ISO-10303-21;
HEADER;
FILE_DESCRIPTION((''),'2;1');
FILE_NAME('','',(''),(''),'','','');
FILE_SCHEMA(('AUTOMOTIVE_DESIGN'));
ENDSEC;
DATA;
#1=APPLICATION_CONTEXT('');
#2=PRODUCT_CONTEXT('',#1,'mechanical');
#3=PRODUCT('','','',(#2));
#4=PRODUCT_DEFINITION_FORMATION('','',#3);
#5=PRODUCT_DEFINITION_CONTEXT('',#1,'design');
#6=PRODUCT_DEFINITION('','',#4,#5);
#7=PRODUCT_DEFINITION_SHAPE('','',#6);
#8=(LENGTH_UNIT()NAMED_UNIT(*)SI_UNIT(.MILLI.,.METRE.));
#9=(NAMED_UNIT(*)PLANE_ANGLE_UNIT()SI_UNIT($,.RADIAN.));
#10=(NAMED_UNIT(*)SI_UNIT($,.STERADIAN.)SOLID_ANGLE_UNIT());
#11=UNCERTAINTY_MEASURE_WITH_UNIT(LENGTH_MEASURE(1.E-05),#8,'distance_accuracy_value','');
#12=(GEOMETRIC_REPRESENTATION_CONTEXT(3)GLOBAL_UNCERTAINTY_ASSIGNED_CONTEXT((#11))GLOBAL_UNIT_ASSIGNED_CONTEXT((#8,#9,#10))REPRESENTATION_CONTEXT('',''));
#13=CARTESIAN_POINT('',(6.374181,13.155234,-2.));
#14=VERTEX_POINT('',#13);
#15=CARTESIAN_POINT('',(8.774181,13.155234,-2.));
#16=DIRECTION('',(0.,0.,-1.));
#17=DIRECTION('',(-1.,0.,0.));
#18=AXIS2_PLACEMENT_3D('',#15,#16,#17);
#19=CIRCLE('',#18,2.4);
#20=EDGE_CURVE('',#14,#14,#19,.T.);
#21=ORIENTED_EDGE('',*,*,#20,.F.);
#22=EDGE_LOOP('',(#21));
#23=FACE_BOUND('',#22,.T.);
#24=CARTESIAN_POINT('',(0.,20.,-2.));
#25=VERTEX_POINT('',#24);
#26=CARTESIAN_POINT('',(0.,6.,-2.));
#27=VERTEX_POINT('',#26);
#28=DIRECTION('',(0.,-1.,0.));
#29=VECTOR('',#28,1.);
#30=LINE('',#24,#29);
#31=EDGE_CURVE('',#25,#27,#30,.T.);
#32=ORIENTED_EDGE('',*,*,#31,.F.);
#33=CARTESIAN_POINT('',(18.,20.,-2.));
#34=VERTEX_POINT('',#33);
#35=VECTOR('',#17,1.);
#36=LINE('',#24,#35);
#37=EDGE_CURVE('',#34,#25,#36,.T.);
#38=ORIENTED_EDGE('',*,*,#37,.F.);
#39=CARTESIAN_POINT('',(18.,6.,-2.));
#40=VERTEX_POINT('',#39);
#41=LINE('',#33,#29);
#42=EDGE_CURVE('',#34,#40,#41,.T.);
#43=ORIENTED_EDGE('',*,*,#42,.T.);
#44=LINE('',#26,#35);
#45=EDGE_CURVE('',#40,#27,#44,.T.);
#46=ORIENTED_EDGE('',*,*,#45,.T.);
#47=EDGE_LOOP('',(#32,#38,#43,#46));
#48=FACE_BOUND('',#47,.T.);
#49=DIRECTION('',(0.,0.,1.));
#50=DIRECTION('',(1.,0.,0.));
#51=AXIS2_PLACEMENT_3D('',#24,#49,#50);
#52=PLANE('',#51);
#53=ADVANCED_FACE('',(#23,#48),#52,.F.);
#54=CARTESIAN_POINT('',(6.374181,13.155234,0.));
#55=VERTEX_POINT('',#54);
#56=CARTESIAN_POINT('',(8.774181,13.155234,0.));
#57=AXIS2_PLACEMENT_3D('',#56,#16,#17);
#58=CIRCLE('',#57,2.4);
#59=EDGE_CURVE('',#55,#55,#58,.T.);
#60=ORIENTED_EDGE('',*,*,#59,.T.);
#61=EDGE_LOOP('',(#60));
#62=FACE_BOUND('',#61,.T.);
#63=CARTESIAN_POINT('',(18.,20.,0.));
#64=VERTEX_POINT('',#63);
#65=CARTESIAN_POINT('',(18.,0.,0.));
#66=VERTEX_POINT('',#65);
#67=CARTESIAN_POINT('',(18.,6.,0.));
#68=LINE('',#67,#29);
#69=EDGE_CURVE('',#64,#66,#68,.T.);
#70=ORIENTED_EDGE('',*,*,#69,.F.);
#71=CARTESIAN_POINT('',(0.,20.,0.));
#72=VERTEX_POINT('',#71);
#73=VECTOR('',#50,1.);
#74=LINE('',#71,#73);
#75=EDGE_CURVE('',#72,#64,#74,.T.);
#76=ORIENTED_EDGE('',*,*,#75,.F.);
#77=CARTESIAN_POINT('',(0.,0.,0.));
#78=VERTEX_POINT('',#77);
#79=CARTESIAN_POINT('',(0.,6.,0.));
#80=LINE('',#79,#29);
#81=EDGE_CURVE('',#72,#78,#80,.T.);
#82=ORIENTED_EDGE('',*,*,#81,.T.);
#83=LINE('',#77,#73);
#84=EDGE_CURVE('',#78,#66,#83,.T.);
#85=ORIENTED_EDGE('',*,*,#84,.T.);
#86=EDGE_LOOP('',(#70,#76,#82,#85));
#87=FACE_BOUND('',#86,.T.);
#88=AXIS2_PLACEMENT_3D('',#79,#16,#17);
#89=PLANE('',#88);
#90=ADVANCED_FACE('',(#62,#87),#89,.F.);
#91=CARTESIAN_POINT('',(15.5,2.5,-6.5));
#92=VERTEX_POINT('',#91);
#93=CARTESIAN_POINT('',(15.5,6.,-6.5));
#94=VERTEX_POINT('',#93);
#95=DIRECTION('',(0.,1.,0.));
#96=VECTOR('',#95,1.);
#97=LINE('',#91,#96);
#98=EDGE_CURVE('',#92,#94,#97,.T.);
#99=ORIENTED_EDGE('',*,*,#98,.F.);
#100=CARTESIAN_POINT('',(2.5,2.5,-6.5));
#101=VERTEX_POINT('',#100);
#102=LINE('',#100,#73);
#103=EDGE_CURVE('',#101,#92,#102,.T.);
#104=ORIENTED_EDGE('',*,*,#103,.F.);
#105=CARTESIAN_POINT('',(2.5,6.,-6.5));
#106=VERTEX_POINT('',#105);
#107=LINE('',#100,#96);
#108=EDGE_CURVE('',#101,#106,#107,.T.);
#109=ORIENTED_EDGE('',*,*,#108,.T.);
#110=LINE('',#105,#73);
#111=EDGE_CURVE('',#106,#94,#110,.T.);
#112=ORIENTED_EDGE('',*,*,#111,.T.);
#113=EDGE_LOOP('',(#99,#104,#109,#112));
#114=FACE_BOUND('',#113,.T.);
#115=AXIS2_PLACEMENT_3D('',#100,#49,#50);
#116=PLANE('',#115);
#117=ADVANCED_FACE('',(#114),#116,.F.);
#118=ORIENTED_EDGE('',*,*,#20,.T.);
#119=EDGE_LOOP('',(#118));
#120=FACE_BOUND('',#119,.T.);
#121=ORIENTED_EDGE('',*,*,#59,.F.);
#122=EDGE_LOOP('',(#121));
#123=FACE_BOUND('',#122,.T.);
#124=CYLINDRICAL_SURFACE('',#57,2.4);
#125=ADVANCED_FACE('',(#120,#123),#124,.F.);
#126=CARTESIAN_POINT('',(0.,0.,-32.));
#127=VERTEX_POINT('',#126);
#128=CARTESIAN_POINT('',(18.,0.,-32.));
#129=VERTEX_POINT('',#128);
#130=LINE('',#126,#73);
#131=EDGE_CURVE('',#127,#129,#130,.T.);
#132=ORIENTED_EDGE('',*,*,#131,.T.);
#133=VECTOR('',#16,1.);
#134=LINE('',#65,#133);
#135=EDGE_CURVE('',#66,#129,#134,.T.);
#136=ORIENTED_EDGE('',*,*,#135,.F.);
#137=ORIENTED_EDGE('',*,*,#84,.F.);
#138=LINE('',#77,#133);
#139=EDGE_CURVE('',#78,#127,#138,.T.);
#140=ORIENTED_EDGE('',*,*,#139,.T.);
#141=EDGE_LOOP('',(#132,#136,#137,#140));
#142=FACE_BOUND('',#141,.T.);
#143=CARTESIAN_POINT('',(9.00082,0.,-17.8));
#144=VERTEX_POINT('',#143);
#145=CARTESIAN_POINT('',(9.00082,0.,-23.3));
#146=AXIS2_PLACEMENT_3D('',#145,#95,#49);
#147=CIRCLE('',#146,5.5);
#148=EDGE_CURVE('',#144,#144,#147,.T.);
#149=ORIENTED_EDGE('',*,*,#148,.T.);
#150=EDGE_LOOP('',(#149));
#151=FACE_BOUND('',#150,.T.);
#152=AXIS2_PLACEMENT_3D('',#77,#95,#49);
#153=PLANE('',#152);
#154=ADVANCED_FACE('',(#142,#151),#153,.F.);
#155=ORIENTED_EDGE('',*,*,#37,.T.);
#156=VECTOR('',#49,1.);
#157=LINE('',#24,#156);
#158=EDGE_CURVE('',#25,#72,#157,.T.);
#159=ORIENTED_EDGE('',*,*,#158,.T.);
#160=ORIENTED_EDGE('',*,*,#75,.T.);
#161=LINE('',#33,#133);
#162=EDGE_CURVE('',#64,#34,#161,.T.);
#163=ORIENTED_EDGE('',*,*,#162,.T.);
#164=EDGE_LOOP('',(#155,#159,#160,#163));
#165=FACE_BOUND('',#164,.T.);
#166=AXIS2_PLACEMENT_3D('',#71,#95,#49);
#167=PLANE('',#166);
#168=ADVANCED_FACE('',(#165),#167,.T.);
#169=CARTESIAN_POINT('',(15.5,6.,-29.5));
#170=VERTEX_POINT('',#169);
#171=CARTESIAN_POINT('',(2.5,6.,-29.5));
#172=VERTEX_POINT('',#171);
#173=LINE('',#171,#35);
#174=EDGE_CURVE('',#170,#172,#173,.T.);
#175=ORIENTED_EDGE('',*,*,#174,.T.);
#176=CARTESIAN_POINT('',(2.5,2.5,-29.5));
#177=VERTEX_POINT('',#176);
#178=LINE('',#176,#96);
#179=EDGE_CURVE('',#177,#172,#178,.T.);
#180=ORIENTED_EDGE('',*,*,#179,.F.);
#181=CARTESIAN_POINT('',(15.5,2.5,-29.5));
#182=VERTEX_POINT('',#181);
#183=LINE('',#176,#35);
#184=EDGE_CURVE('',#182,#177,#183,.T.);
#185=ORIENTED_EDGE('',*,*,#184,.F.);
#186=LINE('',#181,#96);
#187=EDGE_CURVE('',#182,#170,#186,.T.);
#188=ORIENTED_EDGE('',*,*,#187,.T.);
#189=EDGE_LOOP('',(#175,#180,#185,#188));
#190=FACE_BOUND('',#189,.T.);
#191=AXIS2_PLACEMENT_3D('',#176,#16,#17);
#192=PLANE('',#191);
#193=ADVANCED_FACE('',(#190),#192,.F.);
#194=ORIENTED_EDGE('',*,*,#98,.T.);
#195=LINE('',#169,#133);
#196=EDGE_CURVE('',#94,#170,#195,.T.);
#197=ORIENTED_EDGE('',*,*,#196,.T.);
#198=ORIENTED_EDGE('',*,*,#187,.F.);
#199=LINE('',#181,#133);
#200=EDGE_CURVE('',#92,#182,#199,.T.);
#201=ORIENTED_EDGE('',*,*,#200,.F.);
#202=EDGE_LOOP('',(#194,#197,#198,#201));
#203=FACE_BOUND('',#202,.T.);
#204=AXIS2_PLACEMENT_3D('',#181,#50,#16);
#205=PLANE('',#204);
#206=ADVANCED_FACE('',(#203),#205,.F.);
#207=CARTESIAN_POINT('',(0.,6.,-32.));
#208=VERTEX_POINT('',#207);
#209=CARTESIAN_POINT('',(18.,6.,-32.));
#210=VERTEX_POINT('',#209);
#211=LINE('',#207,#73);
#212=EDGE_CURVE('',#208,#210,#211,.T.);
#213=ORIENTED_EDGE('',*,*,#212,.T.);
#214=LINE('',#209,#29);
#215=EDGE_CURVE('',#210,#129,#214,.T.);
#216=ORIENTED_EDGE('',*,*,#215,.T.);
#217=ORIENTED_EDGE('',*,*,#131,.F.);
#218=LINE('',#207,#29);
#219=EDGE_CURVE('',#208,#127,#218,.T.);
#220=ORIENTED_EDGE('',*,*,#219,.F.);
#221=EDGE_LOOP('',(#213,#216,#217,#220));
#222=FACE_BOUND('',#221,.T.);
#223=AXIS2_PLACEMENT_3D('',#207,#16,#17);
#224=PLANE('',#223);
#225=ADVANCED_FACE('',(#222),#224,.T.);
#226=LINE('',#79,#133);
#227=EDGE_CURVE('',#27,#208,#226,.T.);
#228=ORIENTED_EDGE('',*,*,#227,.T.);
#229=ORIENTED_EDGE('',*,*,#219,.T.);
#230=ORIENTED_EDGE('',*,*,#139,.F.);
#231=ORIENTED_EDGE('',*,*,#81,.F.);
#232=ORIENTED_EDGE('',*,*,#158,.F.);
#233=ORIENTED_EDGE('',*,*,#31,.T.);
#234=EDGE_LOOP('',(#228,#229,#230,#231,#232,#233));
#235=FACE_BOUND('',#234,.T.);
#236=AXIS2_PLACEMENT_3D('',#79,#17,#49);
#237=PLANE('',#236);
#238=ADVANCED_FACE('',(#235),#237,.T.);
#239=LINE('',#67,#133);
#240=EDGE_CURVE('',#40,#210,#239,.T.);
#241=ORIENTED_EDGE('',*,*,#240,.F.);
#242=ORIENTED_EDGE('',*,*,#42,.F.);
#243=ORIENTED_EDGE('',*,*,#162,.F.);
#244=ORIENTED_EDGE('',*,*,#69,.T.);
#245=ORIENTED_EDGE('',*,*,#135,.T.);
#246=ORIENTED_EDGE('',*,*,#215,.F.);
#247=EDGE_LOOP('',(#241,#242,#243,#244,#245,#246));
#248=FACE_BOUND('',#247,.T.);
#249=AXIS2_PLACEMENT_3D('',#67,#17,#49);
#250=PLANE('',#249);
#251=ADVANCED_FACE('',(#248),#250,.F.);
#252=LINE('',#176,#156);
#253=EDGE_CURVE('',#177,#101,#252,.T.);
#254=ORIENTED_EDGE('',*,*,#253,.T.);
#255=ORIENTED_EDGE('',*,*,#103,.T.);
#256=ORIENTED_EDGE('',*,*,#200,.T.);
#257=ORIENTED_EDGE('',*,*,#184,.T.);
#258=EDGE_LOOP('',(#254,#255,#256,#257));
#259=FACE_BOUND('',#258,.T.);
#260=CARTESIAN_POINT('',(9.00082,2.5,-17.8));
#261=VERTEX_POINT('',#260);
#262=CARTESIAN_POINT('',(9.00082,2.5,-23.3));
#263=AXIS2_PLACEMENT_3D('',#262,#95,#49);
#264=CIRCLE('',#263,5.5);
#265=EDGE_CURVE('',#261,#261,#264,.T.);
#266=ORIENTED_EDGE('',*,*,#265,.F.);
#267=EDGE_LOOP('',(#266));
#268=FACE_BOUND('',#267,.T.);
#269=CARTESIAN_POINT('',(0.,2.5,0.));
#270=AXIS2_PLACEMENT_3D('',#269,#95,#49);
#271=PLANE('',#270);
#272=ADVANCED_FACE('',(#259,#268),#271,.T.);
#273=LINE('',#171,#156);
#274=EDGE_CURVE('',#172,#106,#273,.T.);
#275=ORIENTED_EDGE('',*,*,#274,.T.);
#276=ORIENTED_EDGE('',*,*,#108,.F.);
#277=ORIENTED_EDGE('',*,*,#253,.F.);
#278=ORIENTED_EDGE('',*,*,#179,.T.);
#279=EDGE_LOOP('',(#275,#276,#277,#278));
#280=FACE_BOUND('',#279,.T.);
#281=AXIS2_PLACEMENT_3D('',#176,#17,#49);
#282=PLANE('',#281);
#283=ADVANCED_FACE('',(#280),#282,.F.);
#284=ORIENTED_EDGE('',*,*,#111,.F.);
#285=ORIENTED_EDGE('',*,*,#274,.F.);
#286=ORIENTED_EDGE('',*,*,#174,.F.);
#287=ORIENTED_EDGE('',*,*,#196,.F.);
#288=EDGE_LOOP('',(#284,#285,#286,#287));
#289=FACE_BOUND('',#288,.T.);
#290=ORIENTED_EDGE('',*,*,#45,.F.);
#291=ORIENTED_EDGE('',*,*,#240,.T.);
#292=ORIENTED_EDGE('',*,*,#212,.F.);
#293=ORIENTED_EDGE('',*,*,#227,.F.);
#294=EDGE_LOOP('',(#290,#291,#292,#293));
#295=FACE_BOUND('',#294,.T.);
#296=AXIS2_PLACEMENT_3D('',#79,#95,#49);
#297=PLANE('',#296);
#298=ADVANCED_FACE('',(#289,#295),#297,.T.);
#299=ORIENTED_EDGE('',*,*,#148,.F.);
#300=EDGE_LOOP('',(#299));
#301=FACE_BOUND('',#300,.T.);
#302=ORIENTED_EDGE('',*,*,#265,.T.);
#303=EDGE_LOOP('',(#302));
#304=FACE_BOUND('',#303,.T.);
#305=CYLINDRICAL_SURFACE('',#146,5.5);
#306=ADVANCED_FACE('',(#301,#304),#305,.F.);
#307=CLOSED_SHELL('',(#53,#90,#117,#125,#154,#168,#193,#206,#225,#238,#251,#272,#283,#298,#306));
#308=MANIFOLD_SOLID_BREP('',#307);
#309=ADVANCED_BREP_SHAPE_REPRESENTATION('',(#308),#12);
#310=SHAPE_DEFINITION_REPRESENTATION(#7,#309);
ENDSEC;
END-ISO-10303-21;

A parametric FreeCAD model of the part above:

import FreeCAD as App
import Part
import Sketcher
from FreeCAD import Vector


def add_polygon(sketch, points):
    """Adds a closed chain of lines whose ends are joined by coincident constraints."""
    first, n = sketch.GeometryCount, len(points)
    for a, b in zip(points, points[1:] + points[:1]):
        sketch.addGeometry(Part.LineSegment(App.Vector(*a, 0), App.Vector(*b, 0)), False)
    for i in range(n):
        sketch.addConstraint(Sketcher.Constraint("Coincident", first + i, 2, first + (i + 1) % n, 1))

doc = App.newDocument("Part")
body = doc.addObject("PartDesign::Body", "Body")

# Sketch on XZ plane
sketch1 = doc.addObject("Sketcher::SketchObject", "Sketch")
body.addObject(sketch1)
sketch1.AttachmentSupport = (doc.XZ_Plane, [""])
sketch1.MapMode = "FlatFace"
add_polygon(sketch1, [(0, -32), (0, 0), (18, 0), (18, -32)])  # lines 0-3
sketch1.addConstraint([
    Sketcher.Constraint("Vertical", 0),
    Sketcher.Constraint("Horizontal", 1),
    Sketcher.Constraint("Vertical", 2),
    Sketcher.Constraint("Horizontal", 3),
    Sketcher.Constraint("Coincident", 0, 2, -1, 1),
    Sketcher.Constraint("DistanceX", 1, 1, 1, 2, 18.0),
    Sketcher.Constraint("DistanceY", 0, 1, 0, 2, 32.0),
])
pad1 = doc.addObject("PartDesign::Pad", "Pad")
body.addObject(pad1)
pad1.Profile = sketch1
pad1.Length = 6
pad1.Reversed = True

# Sketch on XZ plane
sketch2 = doc.addObject("Sketcher::SketchObject", "Sketch001")
body.addObject(sketch2)
sketch2.AttachmentSupport = (doc.XZ_Plane, [""])
sketch2.MapMode = "FlatFace"
sketch2.AttachmentOffset = App.Placement(Vector(0, 0, -6), App.Rotation())
add_polygon(sketch2, [(2, -30), (2, -6), (16, -6), (16, -30)])  # lines 0-3
sketch2.addConstraint([
    Sketcher.Constraint("Vertical", 0),
    Sketcher.Constraint("Horizontal", 1),
    Sketcher.Constraint("Vertical", 2),
    Sketcher.Constraint("Horizontal", 3),
    Sketcher.Constraint("DistanceX", 1, 1, 1, 2, 13.0),
    Sketcher.Constraint("DistanceY", 0, 1, 0, 2, 23.0),
    Sketcher.Constraint("DistanceX", -1, 1, 0, 2, 2.5),
    Sketcher.Constraint("DistanceY", 0, 2, -1, 1, 6.5),
])
pocket1 = doc.addObject("PartDesign::Pocket", "Pocket")
body.addObject(pocket1)
pocket1.Profile = sketch2
pocket1.Length = 3.5
pocket1.Reversed = True

# Sketch on XZ plane
sketch3 = doc.addObject("Sketcher::SketchObject", "Sketch002")
body.addObject(sketch3)
sketch3.AttachmentSupport = (doc.XZ_Plane, [""])
sketch3.MapMode = "FlatFace"
sketch3.AttachmentOffset = App.Placement(Vector(0, 0, -2.5), App.Rotation())
sketch3.addGeometry(Part.Circle(Vector(9, -23, 0), Vector(0, 0, 1), 6), False)
sketch3.addConstraint([
    Sketcher.Constraint("Diameter", 0, 11.0),
    Sketcher.Constraint("DistanceY", 0, 3, -1, 1, 23.3),
    Sketcher.Constraint("DistanceX", -1, 1, 0, 3, 9.00082),
])
pocket2 = doc.addObject("PartDesign::Pocket", "Pocket001")
body.addObject(pocket2)
pocket2.Profile = sketch3
pocket2.Type = "ThroughAll"
pocket2.Reversed = True

# Sketch on XZ plane
sketch4 = doc.addObject("Sketcher::SketchObject", "Sketch003")
body.addObject(sketch4)
sketch4.AttachmentSupport = (doc.XZ_Plane, [""])
sketch4.MapMode = "FlatFace"
sketch4.AttachmentOffset = App.Placement(Vector(0, 0, -6), App.Rotation())
add_polygon(sketch4, [(0, -2), (0, 0), (18, 0), (18, -2)])  # lines 0-3
sketch4.addConstraint([
    Sketcher.Constraint("Vertical", 0),
    Sketcher.Constraint("Horizontal", 1),
    Sketcher.Constraint("Vertical", 2),
    Sketcher.Constraint("Horizontal", 3),
    Sketcher.Constraint("Coincident", 0, 2, -1, 1),
    Sketcher.Constraint("DistanceX", 1, 1, 1, 2, 18.0),
    Sketcher.Constraint("DistanceY", 0, 1, 0, 2, 2.0),
])
pad2 = doc.addObject("PartDesign::Pad", "Pad001")
body.addObject(pad2)
pad2.Profile = sketch4
pad2.Length = 14
pad2.Reversed = True

# Sketch on XY plane
sketch5 = doc.addObject("Sketcher::SketchObject", "Sketch004")
body.addObject(sketch5)
sketch5.AttachmentSupport = (doc.XY_Plane, [""])
sketch5.MapMode = "FlatFace"
sketch5.AttachmentOffset = App.Placement(Vector(0, 0, -2), App.Rotation())
sketch5.addGeometry(Part.Circle(Vector(8.8, 13.2, 0), Vector(0, 0, 1), 2.4), False)
sketch5.addConstraint([
    Sketcher.Constraint("Diameter", 0, 4.8),
    Sketcher.Constraint("DistanceX", -1, 1, 0, 3, 8.774181),
    Sketcher.Constraint("DistanceY", -1, 1, 0, 3, 13.155234),
])
pocket3 = doc.addObject("PartDesign::Pocket", "Pocket002")
body.addObject(pocket3)
pocket3.Profile = sketch5
pocket3.Type = "ThroughAll"
pocket3.Reversed = True

doc.recompute()
